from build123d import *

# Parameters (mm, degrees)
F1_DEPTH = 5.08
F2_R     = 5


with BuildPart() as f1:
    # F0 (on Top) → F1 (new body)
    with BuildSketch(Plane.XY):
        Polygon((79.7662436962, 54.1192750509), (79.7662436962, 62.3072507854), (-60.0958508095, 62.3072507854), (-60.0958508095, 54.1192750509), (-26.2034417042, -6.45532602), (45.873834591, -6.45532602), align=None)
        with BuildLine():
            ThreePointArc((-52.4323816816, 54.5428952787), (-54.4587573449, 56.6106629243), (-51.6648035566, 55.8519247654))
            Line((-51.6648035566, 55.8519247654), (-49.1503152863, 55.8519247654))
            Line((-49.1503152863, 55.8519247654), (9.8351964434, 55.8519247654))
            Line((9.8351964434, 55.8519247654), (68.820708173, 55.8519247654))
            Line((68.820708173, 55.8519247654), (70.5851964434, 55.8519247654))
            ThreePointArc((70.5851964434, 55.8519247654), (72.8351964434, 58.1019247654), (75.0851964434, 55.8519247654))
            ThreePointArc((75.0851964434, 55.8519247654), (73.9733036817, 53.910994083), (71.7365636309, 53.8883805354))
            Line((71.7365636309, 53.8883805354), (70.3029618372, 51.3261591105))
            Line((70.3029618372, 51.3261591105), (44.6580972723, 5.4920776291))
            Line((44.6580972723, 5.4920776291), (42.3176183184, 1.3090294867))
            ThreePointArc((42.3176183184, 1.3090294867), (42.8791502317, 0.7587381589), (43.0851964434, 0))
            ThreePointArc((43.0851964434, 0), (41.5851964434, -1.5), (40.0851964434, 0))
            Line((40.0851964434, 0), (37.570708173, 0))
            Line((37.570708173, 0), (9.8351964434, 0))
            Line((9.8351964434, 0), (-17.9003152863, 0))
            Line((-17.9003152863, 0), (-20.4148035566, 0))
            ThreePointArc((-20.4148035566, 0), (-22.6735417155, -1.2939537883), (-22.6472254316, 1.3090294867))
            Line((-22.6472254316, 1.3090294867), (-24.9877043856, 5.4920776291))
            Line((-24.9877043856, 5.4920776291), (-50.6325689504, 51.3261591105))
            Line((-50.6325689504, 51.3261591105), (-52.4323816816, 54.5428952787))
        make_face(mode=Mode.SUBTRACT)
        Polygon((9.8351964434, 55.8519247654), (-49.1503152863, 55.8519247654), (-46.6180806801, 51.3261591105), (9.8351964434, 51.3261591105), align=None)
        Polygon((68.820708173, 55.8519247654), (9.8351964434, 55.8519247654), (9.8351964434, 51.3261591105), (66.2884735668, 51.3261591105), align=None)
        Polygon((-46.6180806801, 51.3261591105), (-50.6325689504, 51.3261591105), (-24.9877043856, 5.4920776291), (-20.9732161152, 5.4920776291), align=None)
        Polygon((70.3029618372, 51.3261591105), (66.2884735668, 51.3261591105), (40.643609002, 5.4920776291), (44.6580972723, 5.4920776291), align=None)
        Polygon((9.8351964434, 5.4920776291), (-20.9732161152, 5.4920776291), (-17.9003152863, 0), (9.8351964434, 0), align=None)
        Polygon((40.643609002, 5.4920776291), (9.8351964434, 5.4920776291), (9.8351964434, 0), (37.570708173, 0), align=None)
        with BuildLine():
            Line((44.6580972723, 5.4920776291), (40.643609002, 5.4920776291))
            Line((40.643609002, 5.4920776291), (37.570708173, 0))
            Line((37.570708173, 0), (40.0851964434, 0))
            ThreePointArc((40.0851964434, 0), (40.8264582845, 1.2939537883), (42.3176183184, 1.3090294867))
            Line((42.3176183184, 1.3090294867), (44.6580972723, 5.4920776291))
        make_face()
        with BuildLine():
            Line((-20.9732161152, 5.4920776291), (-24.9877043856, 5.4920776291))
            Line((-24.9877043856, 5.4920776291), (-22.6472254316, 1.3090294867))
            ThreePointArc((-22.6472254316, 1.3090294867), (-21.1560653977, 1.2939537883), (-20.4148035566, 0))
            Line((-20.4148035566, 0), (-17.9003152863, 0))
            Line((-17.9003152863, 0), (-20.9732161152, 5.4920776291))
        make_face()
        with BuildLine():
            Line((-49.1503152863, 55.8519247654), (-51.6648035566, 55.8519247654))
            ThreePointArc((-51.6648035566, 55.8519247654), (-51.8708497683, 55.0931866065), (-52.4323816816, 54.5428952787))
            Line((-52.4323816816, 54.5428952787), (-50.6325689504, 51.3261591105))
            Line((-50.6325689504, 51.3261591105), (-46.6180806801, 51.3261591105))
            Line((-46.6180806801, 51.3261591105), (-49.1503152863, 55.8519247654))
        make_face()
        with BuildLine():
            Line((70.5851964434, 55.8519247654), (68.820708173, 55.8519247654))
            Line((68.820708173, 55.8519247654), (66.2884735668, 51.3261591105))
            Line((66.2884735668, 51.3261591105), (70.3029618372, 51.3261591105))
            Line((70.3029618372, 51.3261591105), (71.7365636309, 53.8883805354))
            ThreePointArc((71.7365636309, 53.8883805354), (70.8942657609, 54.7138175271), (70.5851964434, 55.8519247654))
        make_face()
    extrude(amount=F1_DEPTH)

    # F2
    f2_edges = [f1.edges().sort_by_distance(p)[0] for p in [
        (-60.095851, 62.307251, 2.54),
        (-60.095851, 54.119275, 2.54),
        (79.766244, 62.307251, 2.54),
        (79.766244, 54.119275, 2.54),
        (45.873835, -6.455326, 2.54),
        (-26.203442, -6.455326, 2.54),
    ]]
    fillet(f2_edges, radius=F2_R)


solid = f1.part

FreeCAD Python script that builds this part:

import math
import FreeCAD as App
import Part
import Sketcher

V = App.Vector


def edges_at(feature, points):
    """Names of the edges that pass closest to the given points."""
    edges = feature.Shape.Edges
    near = lambda p: min(range(len(edges)), key=lambda i: edges[i].distToShape(Part.Vertex(*p))[0])
    return sorted({f"Edge{near(p) + 1}" for p in points})

doc = App.newDocument("Part")
body = doc.addObject("PartDesign::Body", "Body")

sketch1 = doc.addObject("Sketcher::SketchObject", "Sketch")
body.addObject(sketch1)
sketch1.AttachmentSupport = (doc.XY_Plane, [""])
sketch1.MapMode = "FlatFace"
sketch1.addGeometry(Part.LineSegment(V(79.8, 54.1, 0), V(79.8, 62.3, 0)), False)
sketch1.addGeometry(Part.LineSegment(V(79.8, 62.3, 0), V(-60.1, 62.3, 0)), False)
sketch1.addGeometry(Part.LineSegment(V(-60.1, 62.3, 0), V(-60.1, 54.1, 0)), False)
sketch1.addGeometry(Part.LineSegment(V(-60.1, 54.1, 0), V(-26.2, -6.5, 0)), False)
sketch1.addGeometry(Part.LineSegment(V(-26.2, -6.5, 0), V(45.9, -6.5, 0)), False)
sketch1.addGeometry(Part.LineSegment(V(45.9, -6.5, 0), V(79.8, 54.1, 0)), False)
sketch1.addGeometry(Part.ArcOfCircle(Part.Circle(V(-21.9, 0, 0), V(0, 0, 1), 1.5), math.radians(119), math.radians(360)), False)
sketch1.addGeometry(Part.ArcOfCircle(Part.Circle(V(-21.9, 0, 0), V(0, 0, 1), 1.5), math.radians(0), math.radians(119)), False)
sketch1.addGeometry(Part.ArcOfCircle(Part.Circle(V(41.6, 0, 0), V(0, 0, 1), 1.5), math.radians(180), math.radians(360)), False)
sketch1.addGeometry(Part.ArcOfCircle(Part.Circle(V(41.6, 0, 0), V(0, 0, 1), 1.5), math.radians(61), math.radians(180)), False)
sketch1.addGeometry(Part.ArcOfCircle(Part.Circle(V(41.6, 0, 0), V(0, 0, 1), 1.5), math.radians(0), math.radians(61)), False)
sketch1.addGeometry(Part.LineSegment(V(-46.6, 51.3, 0), V(66.3, 51.3, 0)), False)
sketch1.addGeometry(Part.LineSegment(V(66.3, 51.3, 0), V(40.6, 5.5, 0)), False)
sketch1.addGeometry(Part.LineSegment(V(40.6, 5.5, 0), V(-21, 5.5, 0)), False)
sketch1.addGeometry(Part.LineSegment(V(-21, 5.5, 0), V(-46.6, 51.3, 0)), False)
sketch1.addGeometry(Part.ArcOfCircle(Part.Circle(V(-53.2, 55.9, 0), V(0, 0, 1), 1.5), math.radians(0), math.radians(299)), False)
sketch1.addGeometry(Part.ArcOfCircle(Part.Circle(V(-53.2, 55.9, 0), V(0, 0, 1), 1.5), math.radians(-61), math.radians(0)), False)
sketch1.addGeometry(Part.ArcOfCircle(Part.Circle(V(72.8, 55.9, 0), V(0, 0, 1), 2.2), math.radians(-119), math.radians(0)), False)
sketch1.addGeometry(Part.ArcOfCircle(Part.Circle(V(72.8, 55.9, 0), V(0, 0, 1), 2.2), math.radians(180), math.radians(241)), False)
sketch1.addGeometry(Part.ArcOfCircle(Part.Circle(V(72.8, 55.9, 0), V(0, 0, 1), 2.2), math.radians(0), math.radians(180)), False)
sketch1.addConstraint(Sketcher.Constraint("Coincident", 0, 2, 1, 1))
sketch1.addConstraint(Sketcher.Constraint("Coincident", 1, 2, 2, 1))
sketch1.addConstraint(Sketcher.Constraint("Coincident", 2, 2, 3, 1))
sketch1.addConstraint(Sketcher.Constraint("Coincident", 3, 2, 4, 1))
sketch1.addConstraint(Sketcher.Constraint("Coincident", 4, 2, 5, 1))
sketch1.addConstraint(Sketcher.Constraint("Coincident", 5, 2, 0, 1))
sketch1.addConstraint(Sketcher.Constraint("Tangent", 6, 1, 7, 2))
sketch1.addConstraint(Sketcher.Constraint("Coincident", 7, 1, 6, 2))
sketch1.addConstraint(Sketcher.Constraint("Tangent", 8, 1, 9, 2))
sketch1.addConstraint(Sketcher.Constraint("Tangent", 9, 1, 10, 2))
sketch1.addConstraint(Sketcher.Constraint("Tangent", 10, 1, 8, 2))
sketch1.addConstraint(Sketcher.Constraint("Coincident", 11, 2, 12, 1))
sketch1.addConstraint(Sketcher.Constraint("Coincident", 12, 2, 13, 1))
sketch1.addConstraint(Sketcher.Constraint("Coincident", 13, 2, 14, 1))
sketch1.addConstraint(Sketcher.Constraint("Coincident", 14, 2, 11, 1))
sketch1.addConstraint(Sketcher.Constraint("Tangent", 15, 1, 16, 2))
sketch1.addConstraint(Sketcher.Constraint("Coincident", 16, 1, 15, 2))
sketch1.addConstraint(Sketcher.Constraint("Tangent", 17, 1, 18, 2))
sketch1.addConstraint(Sketcher.Constraint("Tangent", 18, 1, 19, 2))
sketch1.addConstraint(Sketcher.Constraint("Tangent", 19, 1, 17, 2))
sketch1.addConstraint(Sketcher.Constraint("Vertical", 0))
sketch1.addConstraint(Sketcher.Constraint("Horizontal", 1))
sketch1.addConstraint(Sketcher.Constraint("Vertical", 2))
sketch1.addConstraint(Sketcher.Constraint("Horizontal", 4))
sketch1.addConstraint(Sketcher.Constraint("Horizontal", 11))
sketch1.addConstraint(Sketcher.Constraint("Horizontal", 13))
sketch1.addConstraint(Sketcher.Constraint("Equal", 7, 8))
sketch1.addConstraint(Sketcher.Constraint("Equal", 10, 15))
sketch1.addConstraint(Sketcher.Constraint("PointOnObject", 6, 3, -1))
sketch1.addConstraint(Sketcher.Constraint("PointOnObject", 8, 3, -1))
sketch1.addConstraint(Sketcher.Constraint("PointOnObject", 7, 1, -1))
sketch1.addConstraint(Sketcher.Constraint("PointOnObject", 8, 1, -1))
sketch1.addConstraint(Sketcher.Constraint("PointOnObject", 10, 1, -1))
sketch1.addConstraint(Sketcher.Constraint("Parallel", 5, 12))
sketch1.addConstraint(Sketcher.Constraint("Parallel", 3, 14))
sketch1.addConstraint(Sketcher.Constraint("Horizontal", 16, 3, 17, 3))
sketch1.addConstraint(Sketcher.Constraint("Horizontal", 2, 2, 5, 2))
sketch1.addConstraint(Sketcher.Constraint("Horizontal", 6, 1, 9, 1))
sketch1.addConstraint(Sketcher.Constraint("Horizontal", 19, 3, 15, 1))
sketch1.addConstraint(Sketcher.Constraint("Horizontal", 15, 1, 18, 1))
sketch1.addConstraint(Sketcher.Constraint("Horizontal", 18, 1, 19, 1))
sketch1.addConstraint(Sketcher.Constraint("Equal", 3, 5))
sketch1.addConstraint(Sketcher.Constraint("Radius", 6, 1.5))
sketch1.addConstraint(Sketcher.Constraint("Radius", 17, 2.25))
sketch1.addConstraint(Sketcher.Constraint("DistanceX", 7, 1, 8, 3, 62.0))
sketch1.addConstraint(Sketcher.Constraint("DistanceX", 15, 3, 6, 3, 31.25))
sketch1.addConstraint(Sketcher.Constraint("DistanceX", 8, 3, 17, 3, 31.25))
sketch1.addConstraint(Sketcher.Constraint("DistanceX", 16, 1, 14, 2, 5.814301))
sketch1.addConstraint(Sketcher.Constraint("DistanceX", 1, 2, 1, 1, 139.862095))
sketch1.addConstraint(Sketcher.Constraint("DistanceX", 4, 1, 4, 2, 72.077276))
sketch1.addConstraint(Sketcher.Constraint("DistanceX", 11, 1, 11, 2, 112.906554))
sketch1.addConstraint(Sketcher.Constraint("DistanceX", 13, 2, 13, 1, 61.616825))
sketch1.addConstraint(Sketcher.Constraint("DistanceY", 0, 1, 0, 2, 8.187976))
sketch1.addConstraint(Sketcher.Constraint("DistanceY", -1, 1, 0, 2, 62.307251))
sketch1.addConstraint(Sketcher.Constraint("DistanceX", 1, 2, -1, 1, 60.095851))
sketch1.addConstraint(Sketcher.Constraint("DistanceY", -1, 1, 6, 1, 1.309029))
sketch1.addConstraint(Sketcher.Constraint("DistanceX", -1, 1, 9, 1, 42.317618))
sketch1.addConstraint(Sketcher.Constraint("DistanceY", -1, 1, 11, 2, 51.326159))
sketch1.addConstraint(Sketcher.Constraint("DistanceX", -1, 1, 12, 2, 40.643609))
sketch1.addConstraint(Sketcher.Constraint("DistanceY", -1, 1, 17, 1, 53.888381))
sketch1.addConstraint(Sketcher.Constraint("DistanceY", 2, 2, 15, 3, 1.73265))
sketch1.addConstraint(Sketcher.Constraint("DistanceY", 3, 2, 15, 3, 62.307251))
pad1 = doc.addObject("PartDesign::Pad", "Pad")
body.addObject(pad1)
pad1.Profile = sketch1
pad1.Length = 5.08
doc.recompute()

fillet = doc.addObject("PartDesign::Fillet", "Fillet")
body.addObject(fillet)
fillet.Base = (pad1, edges_at(pad1, [
    (-60.096, 62.307, 2.54),
    (-60.096, 54.119, 2.54),
    (79.766, 62.307, 2.54),
    (79.766, 54.119, 2.54),
    (45.874, -6.455, 2.54),
    (-26.203, -6.455, 2.54),
]))
fillet.Radius = 5

doc.recompute()
